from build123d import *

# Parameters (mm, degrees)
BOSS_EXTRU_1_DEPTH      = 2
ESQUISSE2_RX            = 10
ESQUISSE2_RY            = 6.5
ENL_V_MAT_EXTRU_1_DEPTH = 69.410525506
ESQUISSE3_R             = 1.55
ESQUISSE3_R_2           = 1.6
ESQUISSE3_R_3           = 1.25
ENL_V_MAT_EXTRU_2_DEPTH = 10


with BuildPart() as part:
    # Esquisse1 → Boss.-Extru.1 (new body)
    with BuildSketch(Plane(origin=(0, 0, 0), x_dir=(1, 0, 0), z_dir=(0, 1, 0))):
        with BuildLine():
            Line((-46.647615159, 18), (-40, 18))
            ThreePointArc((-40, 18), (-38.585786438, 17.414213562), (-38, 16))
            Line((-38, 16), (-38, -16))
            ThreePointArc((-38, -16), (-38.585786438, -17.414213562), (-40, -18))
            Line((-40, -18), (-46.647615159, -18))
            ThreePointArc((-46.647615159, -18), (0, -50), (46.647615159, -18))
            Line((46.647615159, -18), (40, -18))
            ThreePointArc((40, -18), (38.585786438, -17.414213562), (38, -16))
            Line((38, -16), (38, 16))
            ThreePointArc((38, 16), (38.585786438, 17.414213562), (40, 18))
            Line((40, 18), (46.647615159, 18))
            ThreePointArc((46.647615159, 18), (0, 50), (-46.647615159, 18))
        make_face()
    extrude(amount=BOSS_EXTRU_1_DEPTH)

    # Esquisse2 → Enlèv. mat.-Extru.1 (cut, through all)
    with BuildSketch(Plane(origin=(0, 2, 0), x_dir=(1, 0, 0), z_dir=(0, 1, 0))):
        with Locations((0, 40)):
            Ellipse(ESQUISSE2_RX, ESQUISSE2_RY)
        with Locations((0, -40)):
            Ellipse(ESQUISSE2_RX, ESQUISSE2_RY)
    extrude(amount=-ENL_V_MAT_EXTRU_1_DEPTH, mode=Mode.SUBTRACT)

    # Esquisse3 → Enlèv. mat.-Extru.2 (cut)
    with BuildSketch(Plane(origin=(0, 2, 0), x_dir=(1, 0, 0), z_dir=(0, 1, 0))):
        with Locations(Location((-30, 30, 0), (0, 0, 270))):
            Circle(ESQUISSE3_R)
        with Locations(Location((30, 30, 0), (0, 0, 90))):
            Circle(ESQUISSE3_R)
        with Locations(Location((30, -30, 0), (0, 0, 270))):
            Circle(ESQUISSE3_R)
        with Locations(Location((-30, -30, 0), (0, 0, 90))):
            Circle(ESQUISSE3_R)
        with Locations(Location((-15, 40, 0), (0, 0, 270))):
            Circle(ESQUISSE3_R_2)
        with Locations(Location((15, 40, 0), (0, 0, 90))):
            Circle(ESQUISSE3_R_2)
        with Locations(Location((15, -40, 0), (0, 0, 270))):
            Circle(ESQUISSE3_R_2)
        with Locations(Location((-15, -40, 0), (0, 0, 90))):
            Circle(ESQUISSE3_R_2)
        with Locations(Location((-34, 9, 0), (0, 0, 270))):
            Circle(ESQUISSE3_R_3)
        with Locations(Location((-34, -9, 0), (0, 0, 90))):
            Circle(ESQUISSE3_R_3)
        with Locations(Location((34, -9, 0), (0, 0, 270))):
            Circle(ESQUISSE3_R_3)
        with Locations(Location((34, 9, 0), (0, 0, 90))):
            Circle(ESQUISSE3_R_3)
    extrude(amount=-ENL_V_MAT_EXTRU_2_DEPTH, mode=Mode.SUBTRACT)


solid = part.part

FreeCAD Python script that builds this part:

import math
import FreeCAD as App
import Part
import Sketcher
from FreeCAD import Vector

doc = App.newDocument("Part")
body = doc.addObject("PartDesign::Body", "Body")

# Sketch on XZ plane
sketch1 = body.newObject("Sketcher::SketchObject", "Sketch")
sketch1.AttachmentSupport = (doc.getObject("XZ_Plane"), [""])
sketch1.MapMode = "FlatFace"
sketch1.addGeometry([
    Part.LineSegment(Vector(-46.6, -18, 0), Vector(-40, -18, 0)),  # 0
    Part.ArcOfCircle(Part.Circle(Vector(-40, -16, 0), Vector(0, 0, 1), 2), math.radians(-90), math.radians(0)),  # 1
    Part.LineSegment(Vector(-38, -16, 0), Vector(-38, 16, 0)),  # 2
    Part.ArcOfCircle(Part.Circle(Vector(-40, 16, 0), Vector(0, 0, 1), 2), math.radians(0), math.radians(90)),  # 3
    Part.LineSegment(Vector(-40, 18, 0), Vector(-46.6, 18, 0)),  # 4
    Part.ArcOfCircle(Part.Circle(Vector(0, 0, 0), Vector(0, 0, 1), 50), math.radians(21), math.radians(159)),  # 5
    Part.LineSegment(Vector(46.6, 18, 0), Vector(40, 18, 0)),  # 6
    Part.ArcOfCircle(Part.Circle(Vector(40, 16, 0), Vector(0, 0, 1), 2), math.radians(90), math.radians(180)),  # 7
    Part.LineSegment(Vector(38, 16, 0), Vector(38, -16, 0)),  # 8
    Part.ArcOfCircle(Part.Circle(Vector(40, -16, 0), Vector(0, 0, 1), 2), math.radians(-180), math.radians(-90)),  # 9
    Part.LineSegment(Vector(40, -18, 0), Vector(46.6, -18, 0)),  # 10
    Part.ArcOfCircle(Part.Circle(Vector(0, 0, 0), Vector(0, 0, 1), 50), math.radians(-159), math.radians(-21)),  # 11
], False)
sketch1.addConstraint([
    Sketcher.Constraint("Tangent", 0, 2, 1, 1),
    Sketcher.Constraint("Tangent", 1, 2, 2, 1),
    Sketcher.Constraint("Tangent", 2, 2, 3, 1),
    Sketcher.Constraint("Tangent", 3, 2, 4, 1),
    Sketcher.Constraint("Coincident", 4, 2, 5, 2),
    Sketcher.Constraint("Coincident", 5, 1, 6, 1),
    Sketcher.Constraint("Tangent", 6, 2, 7, 1),
    Sketcher.Constraint("Tangent", 7, 2, 8, 1),
    Sketcher.Constraint("Tangent", 8, 2, 9, 1),
    Sketcher.Constraint("Tangent", 9, 2, 10, 1),
    Sketcher.Constraint("Coincident", 10, 2, 11, 2),
    Sketcher.Constraint("Coincident", 11, 1, 0, 1),
    Sketcher.Constraint("Horizontal", 0),
    Sketcher.Constraint("Vertical", 2),
    Sketcher.Constraint("Horizontal", 4),
    Sketcher.Constraint("Horizontal", 6),
    Sketcher.Constraint("Vertical", 8),
    Sketcher.Constraint("Horizontal", 10),
    Sketcher.Constraint("Coincident", 5, 3, -1, 1),
    Sketcher.Constraint("Coincident", 11, 3, -1, 1),
    Sketcher.Constraint("Equal", 1, 3),
    Sketcher.Constraint("Equal", 3, 7),
    Sketcher.Constraint("Equal", 7, 9),
    Sketcher.Constraint("Equal", 5, 11),
    Sketcher.Constraint("Symmetric", 1, 3, 7, 3, -1, 1),
    Sketcher.Constraint("Horizontal", 3, 3, 7, 3),
    Sketcher.Constraint("Horizontal", 1, 3, 9, 3),
    Sketcher.Constraint("Radius", 1, 2.0),
    Sketcher.Constraint("Radius", 5, 50.0),
    Sketcher.Constraint("DistanceY", 2, 1, 2, 2, 32.0),
    Sketcher.Constraint("DistanceX", 1, 3, -1, 1, 40.0),
])
pad1 = body.newObject("PartDesign::Pad", "Pad")
pad1.Profile = sketch1
pad1.Length = 2
pad1.Reversed = True

# Sketch on XZ plane
sketch2 = body.newObject("Sketcher::SketchObject", "Sketch001")
sketch2.AttachmentSupport = (doc.getObject("XZ_Plane"), [""])
sketch2.MapMode = "FlatFace"
sketch2.AttachmentOffset = App.Placement(Vector(0, 0, -2), App.Rotation())
sketch2.addGeometry([
    Part.Ellipse(Vector(10, -40, 0), Vector(0, -33.5, 0), Vector(0, -40, 0)),
    Part.Ellipse(Vector(10, 40, 0), Vector(0, 46.5, 0), Vector(0, 40, 0)),
], False)
sketch2.addConstraint([
    Sketcher.Constraint("Block", 0),
    Sketcher.Constraint("Block", 1),
])
pocket1 = body.newObject("PartDesign::Pocket", "Pocket")
pocket1.Profile = sketch2
pocket1.Type = "ThroughAll"
pocket1.Reversed = True

# Sketch on XZ plane
sketch3 = body.newObject("Sketcher::SketchObject", "Sketch002")
sketch3.AttachmentSupport = (doc.getObject("XZ_Plane"), [""])
sketch3.MapMode = "FlatFace"
sketch3.AttachmentOffset = App.Placement(Vector(0, 0, -2), App.Rotation())
sketch3.addGeometry([
    Part.Circle(Vector(-30, -30, 0), Vector(0, 0, 1), 1.6),  # 0
    Part.Circle(Vector(30, -30, 0), Vector(0, 0, 1), 1.6),  # 1
    Part.Circle(Vector(30, 30, 0), Vector(0, 0, 1), 1.6),  # 2
    Part.Circle(Vector(-30, 30, 0), Vector(0, 0, 1), 1.6),  # 3
    Part.Circle(Vector(-15, -40, 0), Vector(0, 0, 1), 1.6),  # 4
    Part.Circle(Vector(15, -40, 0), Vector(0, 0, 1), 1.6),  # 5
    Part.Circle(Vector(15, 40, 0), Vector(0, 0, 1), 1.6),  # 6
    Part.Circle(Vector(-15, 40, 0), Vector(0, 0, 1), 1.6),  # 7
    Part.Circle(Vector(-34, -9, 0), Vector(0, 0, 1), 1.2),  # 8
    Part.Circle(Vector(-34, 9, 0), Vector(0, 0, 1), 1.2),  # 9
    Part.Circle(Vector(34, 9, 0), Vector(0, 0, 1), 1.2),  # 10
    Part.Circle(Vector(34, -9, 0), Vector(0, 0, 1), 1.2),  # 11
], False)
sketch3.addConstraint([
    Sketcher.Constraint("Equal", 0, 1),
    Sketcher.Constraint("Equal", 1, 2),
    Sketcher.Constraint("Equal", 2, 3),
    Sketcher.Constraint("Equal", 4, 5),
    Sketcher.Constraint("Equal", 5, 6),
    Sketcher.Constraint("Equal", 6, 7),
    Sketcher.Constraint("Equal", 8, 9),
    Sketcher.Constraint("Equal", 9, 10),
    Sketcher.Constraint("Equal", 10, 11),
    Sketcher.Constraint("Symmetric", 0, 3, 2, 3, -1, 1),
    Sketcher.Constraint("Symmetric", 1, 3, 3, 3, -1, 1),
    Sketcher.Constraint("Symmetric", 4, 3, 6, 3, -1, 1),
    Sketcher.Constraint("Symmetric", 5, 3, 7, 3, -1, 1),
    Sketcher.Constraint("Symmetric", 8, 3, 10, 3, -1, 1),
    Sketcher.Constraint("Symmetric", 9, 3, 11, 3, -1, 1),
    Sketcher.Constraint("Symmetric", 0, 3, 1, 3, -2),
    Sketcher.Constraint("Symmetric", 4, 3, 5, 3, -2),
    Sketcher.Constraint("Symmetric", 9, 3, 10, 3, -2),
    Sketcher.Constraint("Diameter", 0, 3.1),
    Sketcher.Constraint("Diameter", 4, 3.2),
    Sketcher.Constraint("Diameter", 8, 2.5),
    Sketcher.Constraint("DistanceX", 0, 3, -1, 1, 30.0),
    Sketcher.Constraint("DistanceY", 0, 3, -1, 1, 30.0),
    Sketcher.Constraint("DistanceX", 4, 3, -1, 1, 15.0),
    Sketcher.Constraint("DistanceY", 4, 3, -1, 1, 40.0),
    Sketcher.Constraint("DistanceX", 8, 3, -1, 1, 34.0),
    Sketcher.Constraint("DistanceY", 8, 3, -1, 1, 9.0),
])
pocket2 = body.newObject("PartDesign::Pocket", "Pocket001")
pocket2.Profile = sketch3
pocket2.Length = 10
pocket2.Reversed = True

doc.recompute()
